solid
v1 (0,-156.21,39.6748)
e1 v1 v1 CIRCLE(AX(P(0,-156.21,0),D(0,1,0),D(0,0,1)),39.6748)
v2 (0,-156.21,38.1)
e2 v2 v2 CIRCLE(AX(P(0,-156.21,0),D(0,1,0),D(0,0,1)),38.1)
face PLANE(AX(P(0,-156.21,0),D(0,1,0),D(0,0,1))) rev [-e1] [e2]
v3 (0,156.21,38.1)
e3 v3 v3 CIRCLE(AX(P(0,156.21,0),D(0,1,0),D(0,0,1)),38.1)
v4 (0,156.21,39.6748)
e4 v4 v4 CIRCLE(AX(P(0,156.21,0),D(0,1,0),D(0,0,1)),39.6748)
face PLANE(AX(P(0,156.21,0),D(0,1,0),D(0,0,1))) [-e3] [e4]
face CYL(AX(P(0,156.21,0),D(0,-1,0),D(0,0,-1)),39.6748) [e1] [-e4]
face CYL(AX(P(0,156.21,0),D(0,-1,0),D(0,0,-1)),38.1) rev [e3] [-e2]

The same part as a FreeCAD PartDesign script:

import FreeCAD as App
import Part
import Sketcher
from FreeCAD import Vector
Q = App.Units.Quantity

doc = App.newDocument("Part")
body = doc.addObject("PartDesign::Body", "Body")

# Sketch on XZ plane
sketch1 = body.newObject("Sketcher::SketchObject", "Sketch")
sketch1.AttachmentSupport = (doc.getObject("XZ_Plane"), [""])
sketch1.MapMode = "FlatFace"
sketch1.addGeometry([
    Part.Circle(Vector(0, 0, 0), Vector(0, 0, 1), 39.6748),
    Part.Circle(Vector(0, 0, 0), Vector(0, 0, 1), 38.1),
], False)
sketch1.addConstraint([
    Sketcher.Constraint("Coincident", 0, 3, -1, 1),
    Sketcher.Constraint("Coincident", 1, 3, -1, 1),
    Sketcher.Constraint("Diameter", 1, Q("3 in")),
    Sketcher.Constraint("Diameter", 0, Q("3.124 in")),
])
pad1 = body.newObject("PartDesign::Pad", "Pad")
pad1.Profile = sketch1
pad1.Length = Q("12.3 in")
pad1.Midplane = True

doc.recompute()
